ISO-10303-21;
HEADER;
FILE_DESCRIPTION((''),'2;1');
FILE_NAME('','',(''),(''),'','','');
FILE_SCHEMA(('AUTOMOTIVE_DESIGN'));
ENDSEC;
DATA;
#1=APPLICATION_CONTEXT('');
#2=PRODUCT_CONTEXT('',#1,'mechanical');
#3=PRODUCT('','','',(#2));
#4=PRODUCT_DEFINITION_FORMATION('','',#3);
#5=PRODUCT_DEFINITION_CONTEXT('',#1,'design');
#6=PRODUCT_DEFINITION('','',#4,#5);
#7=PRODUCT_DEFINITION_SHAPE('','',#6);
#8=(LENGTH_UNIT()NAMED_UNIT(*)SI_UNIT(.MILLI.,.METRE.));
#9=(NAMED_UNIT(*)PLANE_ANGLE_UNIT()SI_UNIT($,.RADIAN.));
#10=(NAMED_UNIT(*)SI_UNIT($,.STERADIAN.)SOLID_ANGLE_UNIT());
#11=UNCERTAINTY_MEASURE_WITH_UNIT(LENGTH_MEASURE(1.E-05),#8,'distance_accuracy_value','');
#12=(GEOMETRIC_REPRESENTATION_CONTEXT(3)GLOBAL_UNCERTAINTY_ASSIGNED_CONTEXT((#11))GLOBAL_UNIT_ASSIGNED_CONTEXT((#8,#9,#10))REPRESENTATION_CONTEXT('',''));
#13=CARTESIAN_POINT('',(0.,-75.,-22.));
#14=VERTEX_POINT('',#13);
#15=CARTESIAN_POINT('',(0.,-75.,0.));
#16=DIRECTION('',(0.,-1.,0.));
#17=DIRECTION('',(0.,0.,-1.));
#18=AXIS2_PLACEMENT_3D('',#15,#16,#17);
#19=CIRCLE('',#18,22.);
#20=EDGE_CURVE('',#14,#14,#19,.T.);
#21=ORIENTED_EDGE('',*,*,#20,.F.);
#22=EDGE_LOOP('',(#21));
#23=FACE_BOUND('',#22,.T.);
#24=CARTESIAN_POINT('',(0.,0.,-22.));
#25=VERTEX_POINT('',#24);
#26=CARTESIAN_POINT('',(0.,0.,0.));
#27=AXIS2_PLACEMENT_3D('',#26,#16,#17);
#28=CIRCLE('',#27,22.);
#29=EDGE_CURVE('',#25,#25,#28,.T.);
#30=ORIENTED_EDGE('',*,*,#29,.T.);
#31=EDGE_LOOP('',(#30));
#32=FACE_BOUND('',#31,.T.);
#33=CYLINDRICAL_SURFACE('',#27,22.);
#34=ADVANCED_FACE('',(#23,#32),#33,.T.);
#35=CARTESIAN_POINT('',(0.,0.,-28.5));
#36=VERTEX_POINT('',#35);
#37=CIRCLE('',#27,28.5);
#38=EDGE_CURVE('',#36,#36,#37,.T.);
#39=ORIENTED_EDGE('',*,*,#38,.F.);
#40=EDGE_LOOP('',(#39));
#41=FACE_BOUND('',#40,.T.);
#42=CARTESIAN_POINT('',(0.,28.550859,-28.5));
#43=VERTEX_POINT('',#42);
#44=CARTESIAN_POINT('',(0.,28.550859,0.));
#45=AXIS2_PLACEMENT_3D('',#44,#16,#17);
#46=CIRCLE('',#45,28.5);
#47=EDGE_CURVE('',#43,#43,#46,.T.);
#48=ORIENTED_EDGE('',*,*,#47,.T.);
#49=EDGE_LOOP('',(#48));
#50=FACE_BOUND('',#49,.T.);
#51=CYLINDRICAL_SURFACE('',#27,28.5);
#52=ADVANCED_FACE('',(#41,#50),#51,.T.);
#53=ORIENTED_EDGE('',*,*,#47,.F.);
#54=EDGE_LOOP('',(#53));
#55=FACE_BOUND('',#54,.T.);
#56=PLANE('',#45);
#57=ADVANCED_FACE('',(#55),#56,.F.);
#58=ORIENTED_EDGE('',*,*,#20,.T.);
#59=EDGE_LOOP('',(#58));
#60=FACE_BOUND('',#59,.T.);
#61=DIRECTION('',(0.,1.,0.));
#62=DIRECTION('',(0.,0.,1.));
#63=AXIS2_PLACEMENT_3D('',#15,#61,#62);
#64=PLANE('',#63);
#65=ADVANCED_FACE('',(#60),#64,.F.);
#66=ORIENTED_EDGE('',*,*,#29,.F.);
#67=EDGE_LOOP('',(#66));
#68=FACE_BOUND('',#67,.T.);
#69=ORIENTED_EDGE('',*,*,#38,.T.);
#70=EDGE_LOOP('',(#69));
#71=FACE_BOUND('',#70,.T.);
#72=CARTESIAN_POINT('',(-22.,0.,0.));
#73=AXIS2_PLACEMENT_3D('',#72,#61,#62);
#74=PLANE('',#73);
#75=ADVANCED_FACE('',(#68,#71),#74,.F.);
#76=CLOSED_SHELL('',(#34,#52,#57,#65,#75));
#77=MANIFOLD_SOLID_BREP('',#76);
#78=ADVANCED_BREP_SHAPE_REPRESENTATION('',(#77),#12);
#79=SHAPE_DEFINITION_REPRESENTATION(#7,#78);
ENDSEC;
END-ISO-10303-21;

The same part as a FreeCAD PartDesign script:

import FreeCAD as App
import Part
import Sketcher
from FreeCAD import Vector
Q = App.Units.Quantity


def add_polygon(sketch, points):
    """Adds a closed chain of lines whose ends are joined by coincident constraints."""
    first, n = sketch.GeometryCount, len(points)
    for a, b in zip(points, points[1:] + points[:1]):
        sketch.addGeometry(Part.LineSegment(App.Vector(*a, 0), App.Vector(*b, 0)), False)
    for i in range(n):
        sketch.addConstraint(Sketcher.Constraint("Coincident", first + i, 2, first + (i + 1) % n, 1))

doc = App.newDocument("Part")
body = doc.addObject("PartDesign::Body", "Body")

# Sketch on XY plane
sketch1 = doc.addObject("Sketcher::SketchObject", "Sketch")
body.addObject(sketch1)
sketch1.AttachmentSupport = (doc.XY_Plane, [""])
sketch1.MapMode = "FlatFace"
add_polygon(sketch1, [(-22, -75), (0, -75), (0, 29), (-28, 29), (-28, 0), (-22, 0)])  # lines 0-5
sketch1.addConstraint(Sketcher.Constraint("Horizontal", 0))
sketch1.addConstraint(Sketcher.Constraint("Vertical", 1))
sketch1.addConstraint(Sketcher.Constraint("Horizontal", 2))
sketch1.addConstraint(Sketcher.Constraint("Vertical", 3))
sketch1.addConstraint(Sketcher.Constraint("Horizontal", 4))
sketch1.addConstraint(Sketcher.Constraint("Vertical", 5))
sketch1.addConstraint(Sketcher.Constraint("PointOnObject", 0, 2, -2))
sketch1.addConstraint(Sketcher.Constraint("PointOnObject", 3, 2, -1))
sketch1.addConstraint(Sketcher.Constraint("DistanceX", 0, 1, 0, 2, Q("22 mm")))
sketch1.addConstraint(Sketcher.Constraint("DistanceY", 5, 2, 5, 1, Q("75 mm")))
sketch1.addConstraint(Sketcher.Constraint("DistanceX", 2, 2, 2, 1, Q("28.5 mm")))
sketch1.addConstraint(Sketcher.Constraint("DistanceY", 1, 1, 1, 2, Q("103.550859 mm")))
revolution = doc.addObject("PartDesign::Revolution", "Revolution")
body.addObject(revolution)
revolution.Profile = sketch1
revolution.ReferenceAxis = (sketch1, ["V_Axis"])
revolution.Angle = 360

doc.recompute()
